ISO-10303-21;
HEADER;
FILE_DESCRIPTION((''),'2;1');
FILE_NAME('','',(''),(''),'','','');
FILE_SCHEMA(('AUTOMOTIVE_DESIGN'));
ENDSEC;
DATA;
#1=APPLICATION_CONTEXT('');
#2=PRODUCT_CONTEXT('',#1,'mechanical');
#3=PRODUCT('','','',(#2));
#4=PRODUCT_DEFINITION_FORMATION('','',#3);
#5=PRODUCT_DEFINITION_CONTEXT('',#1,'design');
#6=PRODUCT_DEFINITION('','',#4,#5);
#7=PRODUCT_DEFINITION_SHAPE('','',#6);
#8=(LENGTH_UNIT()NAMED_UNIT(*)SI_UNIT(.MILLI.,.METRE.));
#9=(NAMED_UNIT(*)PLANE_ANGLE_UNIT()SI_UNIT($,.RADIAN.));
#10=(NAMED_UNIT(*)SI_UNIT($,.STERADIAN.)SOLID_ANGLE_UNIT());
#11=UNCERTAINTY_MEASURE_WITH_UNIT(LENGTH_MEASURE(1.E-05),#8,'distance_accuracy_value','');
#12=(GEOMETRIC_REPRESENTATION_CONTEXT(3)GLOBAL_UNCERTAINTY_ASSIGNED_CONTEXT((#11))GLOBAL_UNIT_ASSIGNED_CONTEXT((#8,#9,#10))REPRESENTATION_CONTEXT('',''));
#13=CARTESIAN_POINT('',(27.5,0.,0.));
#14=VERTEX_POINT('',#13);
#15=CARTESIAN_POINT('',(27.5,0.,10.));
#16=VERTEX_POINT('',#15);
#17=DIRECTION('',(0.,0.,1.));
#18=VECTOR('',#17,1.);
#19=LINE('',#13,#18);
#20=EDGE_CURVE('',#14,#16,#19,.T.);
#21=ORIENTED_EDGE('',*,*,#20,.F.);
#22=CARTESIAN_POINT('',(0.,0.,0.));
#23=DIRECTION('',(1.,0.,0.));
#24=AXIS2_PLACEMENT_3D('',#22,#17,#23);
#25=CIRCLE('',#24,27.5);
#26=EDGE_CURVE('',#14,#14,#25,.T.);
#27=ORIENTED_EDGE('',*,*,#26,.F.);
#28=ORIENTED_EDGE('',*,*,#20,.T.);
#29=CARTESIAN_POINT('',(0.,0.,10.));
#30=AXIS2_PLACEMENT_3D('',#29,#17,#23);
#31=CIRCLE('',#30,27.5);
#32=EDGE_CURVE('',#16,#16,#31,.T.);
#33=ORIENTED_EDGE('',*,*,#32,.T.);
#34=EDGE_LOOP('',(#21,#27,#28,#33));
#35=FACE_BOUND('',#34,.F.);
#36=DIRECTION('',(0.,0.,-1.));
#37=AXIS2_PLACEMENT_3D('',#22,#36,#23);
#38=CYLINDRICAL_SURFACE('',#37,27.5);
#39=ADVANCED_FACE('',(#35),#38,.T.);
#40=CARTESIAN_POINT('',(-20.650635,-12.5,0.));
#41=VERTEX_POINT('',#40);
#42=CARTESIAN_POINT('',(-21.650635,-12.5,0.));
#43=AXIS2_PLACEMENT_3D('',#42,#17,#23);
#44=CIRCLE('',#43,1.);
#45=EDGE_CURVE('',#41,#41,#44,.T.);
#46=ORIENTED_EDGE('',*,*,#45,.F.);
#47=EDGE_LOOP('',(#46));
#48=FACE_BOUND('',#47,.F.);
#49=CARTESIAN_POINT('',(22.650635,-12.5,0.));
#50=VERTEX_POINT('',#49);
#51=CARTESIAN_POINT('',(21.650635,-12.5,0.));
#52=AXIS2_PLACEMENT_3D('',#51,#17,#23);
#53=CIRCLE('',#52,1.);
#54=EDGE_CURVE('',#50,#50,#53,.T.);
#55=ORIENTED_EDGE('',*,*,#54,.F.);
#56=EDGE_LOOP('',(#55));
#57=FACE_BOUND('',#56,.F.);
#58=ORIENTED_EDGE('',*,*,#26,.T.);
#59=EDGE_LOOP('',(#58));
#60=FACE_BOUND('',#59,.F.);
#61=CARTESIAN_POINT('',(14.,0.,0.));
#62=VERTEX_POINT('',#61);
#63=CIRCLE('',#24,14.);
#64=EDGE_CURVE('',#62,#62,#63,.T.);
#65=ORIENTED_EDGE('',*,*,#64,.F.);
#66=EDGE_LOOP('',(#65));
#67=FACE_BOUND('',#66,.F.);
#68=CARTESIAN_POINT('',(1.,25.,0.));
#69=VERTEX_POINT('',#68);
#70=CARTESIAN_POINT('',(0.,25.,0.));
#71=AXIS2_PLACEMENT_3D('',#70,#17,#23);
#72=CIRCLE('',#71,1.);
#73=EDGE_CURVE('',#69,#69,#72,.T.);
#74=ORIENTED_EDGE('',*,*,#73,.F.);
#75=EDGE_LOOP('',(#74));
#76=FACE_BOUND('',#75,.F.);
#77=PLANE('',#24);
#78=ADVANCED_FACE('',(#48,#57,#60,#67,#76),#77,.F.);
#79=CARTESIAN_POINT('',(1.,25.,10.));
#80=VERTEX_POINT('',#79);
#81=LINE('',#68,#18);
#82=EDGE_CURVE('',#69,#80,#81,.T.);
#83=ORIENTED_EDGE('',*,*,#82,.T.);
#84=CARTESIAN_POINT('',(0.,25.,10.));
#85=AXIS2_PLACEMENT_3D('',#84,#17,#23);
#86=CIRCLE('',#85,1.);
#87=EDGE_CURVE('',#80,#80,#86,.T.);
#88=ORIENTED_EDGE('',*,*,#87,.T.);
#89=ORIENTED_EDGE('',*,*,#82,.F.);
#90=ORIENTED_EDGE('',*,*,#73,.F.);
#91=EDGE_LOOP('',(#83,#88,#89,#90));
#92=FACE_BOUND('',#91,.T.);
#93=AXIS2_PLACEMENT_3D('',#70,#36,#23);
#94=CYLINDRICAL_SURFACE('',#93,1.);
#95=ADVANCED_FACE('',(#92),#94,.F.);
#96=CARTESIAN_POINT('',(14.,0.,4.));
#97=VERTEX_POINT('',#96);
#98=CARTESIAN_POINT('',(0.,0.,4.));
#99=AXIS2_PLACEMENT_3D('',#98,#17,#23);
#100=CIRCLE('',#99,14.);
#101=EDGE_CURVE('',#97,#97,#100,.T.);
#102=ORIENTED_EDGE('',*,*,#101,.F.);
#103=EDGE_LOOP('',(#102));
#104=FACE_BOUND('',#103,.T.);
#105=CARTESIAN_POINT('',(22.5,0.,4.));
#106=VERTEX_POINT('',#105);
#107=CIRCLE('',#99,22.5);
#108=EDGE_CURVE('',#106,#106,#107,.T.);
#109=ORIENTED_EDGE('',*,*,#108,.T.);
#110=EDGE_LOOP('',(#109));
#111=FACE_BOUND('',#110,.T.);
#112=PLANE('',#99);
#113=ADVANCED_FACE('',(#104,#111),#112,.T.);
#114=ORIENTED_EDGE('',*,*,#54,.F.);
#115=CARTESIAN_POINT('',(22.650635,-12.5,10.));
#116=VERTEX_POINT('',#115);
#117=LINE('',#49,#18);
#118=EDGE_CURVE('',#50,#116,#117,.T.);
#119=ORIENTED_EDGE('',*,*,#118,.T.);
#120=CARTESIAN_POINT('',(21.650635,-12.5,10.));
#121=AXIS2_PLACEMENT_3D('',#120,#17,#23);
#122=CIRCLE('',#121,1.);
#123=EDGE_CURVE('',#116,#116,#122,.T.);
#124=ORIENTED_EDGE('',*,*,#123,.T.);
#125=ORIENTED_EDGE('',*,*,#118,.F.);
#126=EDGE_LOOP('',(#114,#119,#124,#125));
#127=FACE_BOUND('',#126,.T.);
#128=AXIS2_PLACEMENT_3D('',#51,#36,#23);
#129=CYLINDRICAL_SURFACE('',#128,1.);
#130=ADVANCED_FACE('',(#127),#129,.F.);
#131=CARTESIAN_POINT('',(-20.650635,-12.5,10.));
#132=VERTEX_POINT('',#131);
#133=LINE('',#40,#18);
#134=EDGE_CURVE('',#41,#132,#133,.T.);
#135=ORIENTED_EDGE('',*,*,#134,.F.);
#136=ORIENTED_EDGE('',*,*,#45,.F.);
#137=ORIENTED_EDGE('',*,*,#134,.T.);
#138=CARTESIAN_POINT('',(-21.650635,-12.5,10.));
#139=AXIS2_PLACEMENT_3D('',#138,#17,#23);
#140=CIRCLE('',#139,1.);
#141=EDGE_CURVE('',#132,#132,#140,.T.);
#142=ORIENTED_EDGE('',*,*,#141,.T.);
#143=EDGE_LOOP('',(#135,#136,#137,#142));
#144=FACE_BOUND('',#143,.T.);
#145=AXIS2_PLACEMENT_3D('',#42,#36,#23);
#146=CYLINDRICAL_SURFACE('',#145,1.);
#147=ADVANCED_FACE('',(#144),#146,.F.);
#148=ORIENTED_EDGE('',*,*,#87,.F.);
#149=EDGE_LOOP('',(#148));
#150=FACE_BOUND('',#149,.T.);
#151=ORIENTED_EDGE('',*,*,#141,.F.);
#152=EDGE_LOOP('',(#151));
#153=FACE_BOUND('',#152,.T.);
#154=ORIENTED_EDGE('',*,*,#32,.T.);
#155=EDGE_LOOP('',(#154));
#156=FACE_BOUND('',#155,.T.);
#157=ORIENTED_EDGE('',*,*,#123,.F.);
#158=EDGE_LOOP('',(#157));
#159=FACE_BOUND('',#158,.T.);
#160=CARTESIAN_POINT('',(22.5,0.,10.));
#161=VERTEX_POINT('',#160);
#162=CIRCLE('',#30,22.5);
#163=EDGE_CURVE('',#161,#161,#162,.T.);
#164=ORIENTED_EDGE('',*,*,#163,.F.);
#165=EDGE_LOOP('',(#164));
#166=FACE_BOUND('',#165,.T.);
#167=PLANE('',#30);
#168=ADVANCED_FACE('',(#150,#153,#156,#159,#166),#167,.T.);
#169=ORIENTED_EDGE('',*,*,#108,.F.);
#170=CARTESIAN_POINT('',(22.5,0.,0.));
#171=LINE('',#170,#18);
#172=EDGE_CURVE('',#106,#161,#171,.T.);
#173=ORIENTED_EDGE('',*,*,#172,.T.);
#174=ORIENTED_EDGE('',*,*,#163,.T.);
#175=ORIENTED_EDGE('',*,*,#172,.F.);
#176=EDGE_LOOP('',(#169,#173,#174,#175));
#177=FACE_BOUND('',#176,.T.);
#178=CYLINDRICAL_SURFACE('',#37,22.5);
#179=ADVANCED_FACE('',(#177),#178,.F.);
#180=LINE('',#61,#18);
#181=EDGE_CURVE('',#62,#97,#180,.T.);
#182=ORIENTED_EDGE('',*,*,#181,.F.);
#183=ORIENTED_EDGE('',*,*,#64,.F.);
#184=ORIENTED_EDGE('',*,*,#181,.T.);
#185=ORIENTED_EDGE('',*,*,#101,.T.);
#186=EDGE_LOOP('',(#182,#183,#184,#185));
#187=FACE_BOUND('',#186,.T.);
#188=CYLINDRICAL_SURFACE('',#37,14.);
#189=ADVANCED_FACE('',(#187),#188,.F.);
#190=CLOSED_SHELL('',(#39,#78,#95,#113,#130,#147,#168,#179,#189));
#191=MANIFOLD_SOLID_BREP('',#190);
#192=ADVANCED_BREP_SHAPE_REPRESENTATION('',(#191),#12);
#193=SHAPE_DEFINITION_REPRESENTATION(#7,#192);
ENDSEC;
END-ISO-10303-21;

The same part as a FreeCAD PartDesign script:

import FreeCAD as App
import Part
import Sketcher
Q = App.Units.Quantity

doc = App.newDocument("Part")
body = doc.addObject("PartDesign::Body", "Body")

# Sketch on XY plane
sketch1 = doc.addObject("Sketcher::SketchObject", "Sketch")
body.addObject(sketch1)
sketch1.AttachmentSupport = (doc.XY_Plane, [""])
sketch1.MapMode = "FlatFace"
sketch1.addGeometry([
    Part.Circle(App.Vector(0, 0, 0), App.Vector(0, 0, 1), 27.5),  # 0
    Part.Circle(App.Vector(-21.7, -12.5, 0), App.Vector(0, 0, 1), 1),  # 1
    Part.Circle(App.Vector(21.7, -12.5, 0), App.Vector(0, 0, 1), 1),  # 2
    Part.Circle(App.Vector(0, 0, 0), App.Vector(0, 0, 1), 22.5),  # 3
    Part.Circle(App.Vector(0, 25, 0), App.Vector(0, 0, 1), 1),  # 4
], False)
sketch1.addConstraint([
    Sketcher.Constraint("Coincident", 0, 3, -1, 1),
    Sketcher.Constraint("Coincident", 3, 3, -1, 1),
    Sketcher.Constraint("Equal", 1, 2),
    Sketcher.Constraint("Equal", 2, 4),
    Sketcher.Constraint("Symmetric", 1, 3, 2, 3, -2),
    Sketcher.Constraint("PointOnObject", 4, 3, -2),
    Sketcher.Constraint("Diameter", 0, Q("55 mm")),
    Sketcher.Constraint("Diameter", 1, Q("2 mm")),
    Sketcher.Constraint("Diameter", 3, Q("45 mm")),
    Sketcher.Constraint("DistanceY", -1, 1, 4, 3, Q("25 mm")),
    Sketcher.Constraint("DistanceY", 1, 3, -1, 1, Q("12.5 mm")),
    Sketcher.Constraint("DistanceX", 1, 3, 2, 3, Q("43.30127 mm")),
])
pad1 = doc.addObject("PartDesign::Pad", "Pad")
body.addObject(pad1)
pad1.Profile = sketch1
pad1.Length = 10

# Sketch on XY plane
sketch2 = doc.addObject("Sketcher::SketchObject", "Sketch001")
body.addObject(sketch2)
sketch2.AttachmentSupport = (doc.XY_Plane, [""])
sketch2.MapMode = "FlatFace"
sketch2.addGeometry([
    Part.Circle(App.Vector(0, 0, 0), App.Vector(0, 0, 1), 22),
    Part.Circle(App.Vector(0, 0, 0), App.Vector(0, 0, 1), 14),
], False)
sketch2.addConstraint([
    Sketcher.Constraint("Coincident", 0, 3, -1, 1),
    Sketcher.Constraint("Coincident", 1, 3, -1, 1),
    Sketcher.Constraint("Diameter", 0, Q("45 mm")),
    Sketcher.Constraint("Diameter", 1, Q("28 mm")),
])
pad2 = doc.addObject("PartDesign::Pad", "Pad001")
body.addObject(pad2)
pad2.Profile = sketch2
pad2.Length = 4

doc.recompute()
